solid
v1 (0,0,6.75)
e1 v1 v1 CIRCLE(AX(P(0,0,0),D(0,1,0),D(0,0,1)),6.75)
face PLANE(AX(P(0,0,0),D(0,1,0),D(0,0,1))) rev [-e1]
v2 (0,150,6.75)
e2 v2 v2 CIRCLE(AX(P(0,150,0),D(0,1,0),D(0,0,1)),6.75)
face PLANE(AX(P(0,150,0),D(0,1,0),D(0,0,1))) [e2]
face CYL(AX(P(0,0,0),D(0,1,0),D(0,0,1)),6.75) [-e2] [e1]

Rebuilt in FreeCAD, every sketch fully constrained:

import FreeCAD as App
import Part
import Sketcher
from FreeCAD import Vector
Q = App.Units.Quantity

doc = App.newDocument("Part")
params = doc.addObject("Spreadsheet::Sheet", "Params")
for row, (alias, value) in enumerate([
    ("sketch1_diameter", "13.5 mm"),
    ("sketch2_height", "150 mm"),
], start=1):
    params.set(f"A{row}", alias)
    params.set(f"B{row}", "=" + value)
    params.setAlias(f"B{row}", alias)

body = doc.addObject("PartDesign::Body", "Body")

sketch1 = doc.addObject("Sketcher::SketchObject", "Sketch")
body.addObject(sketch1)
sketch1.AttachmentSupport = (doc.XZ_Plane, [""])
sketch1.MapMode = "FlatFace"
sketch1.addGeometry(Part.Circle(Vector(0, 0, 0), Vector(0, 0, 1), 7), False)
sketch1.addConstraint([
    Sketcher.Constraint("Coincident", 0, 3, -1, 1),
    Sketcher.Constraint("Diameter", 0, Q("13.5 mm")),
])
sketch1.setExpression("Constraints[1]", "Params.sketch1_diameter")

sketch2 = doc.addObject("Sketcher::SketchObject", "Sketch001")
body.addObject(sketch2)
sketch2.AttachmentSupport = (doc.XY_Plane, [""])
sketch2.MapMode = "FlatFace"
sketch2.addGeometry(Part.LineSegment(Vector(0, 0, 0), Vector(0, 150, 0)), False)
sketch2.addConstraint([
    Sketcher.Constraint("Vertical", 0),
    Sketcher.Constraint("Coincident", 0, 1, -1, 1),
    Sketcher.Constraint("DistanceY", 0, 1, 0, 2, Q("150 mm")),
])
sketch2.setExpression("Constraints[2]", "Params.sketch2_height")
doc.recompute()

additivepipe = doc.addObject("PartDesign::AdditivePipe", "AdditivePipe")
body.addObject(additivepipe)
additivepipe.Profile = sketch1
additivepipe.Spine = (sketch2, ["Edge1"])

doc.recompute()
